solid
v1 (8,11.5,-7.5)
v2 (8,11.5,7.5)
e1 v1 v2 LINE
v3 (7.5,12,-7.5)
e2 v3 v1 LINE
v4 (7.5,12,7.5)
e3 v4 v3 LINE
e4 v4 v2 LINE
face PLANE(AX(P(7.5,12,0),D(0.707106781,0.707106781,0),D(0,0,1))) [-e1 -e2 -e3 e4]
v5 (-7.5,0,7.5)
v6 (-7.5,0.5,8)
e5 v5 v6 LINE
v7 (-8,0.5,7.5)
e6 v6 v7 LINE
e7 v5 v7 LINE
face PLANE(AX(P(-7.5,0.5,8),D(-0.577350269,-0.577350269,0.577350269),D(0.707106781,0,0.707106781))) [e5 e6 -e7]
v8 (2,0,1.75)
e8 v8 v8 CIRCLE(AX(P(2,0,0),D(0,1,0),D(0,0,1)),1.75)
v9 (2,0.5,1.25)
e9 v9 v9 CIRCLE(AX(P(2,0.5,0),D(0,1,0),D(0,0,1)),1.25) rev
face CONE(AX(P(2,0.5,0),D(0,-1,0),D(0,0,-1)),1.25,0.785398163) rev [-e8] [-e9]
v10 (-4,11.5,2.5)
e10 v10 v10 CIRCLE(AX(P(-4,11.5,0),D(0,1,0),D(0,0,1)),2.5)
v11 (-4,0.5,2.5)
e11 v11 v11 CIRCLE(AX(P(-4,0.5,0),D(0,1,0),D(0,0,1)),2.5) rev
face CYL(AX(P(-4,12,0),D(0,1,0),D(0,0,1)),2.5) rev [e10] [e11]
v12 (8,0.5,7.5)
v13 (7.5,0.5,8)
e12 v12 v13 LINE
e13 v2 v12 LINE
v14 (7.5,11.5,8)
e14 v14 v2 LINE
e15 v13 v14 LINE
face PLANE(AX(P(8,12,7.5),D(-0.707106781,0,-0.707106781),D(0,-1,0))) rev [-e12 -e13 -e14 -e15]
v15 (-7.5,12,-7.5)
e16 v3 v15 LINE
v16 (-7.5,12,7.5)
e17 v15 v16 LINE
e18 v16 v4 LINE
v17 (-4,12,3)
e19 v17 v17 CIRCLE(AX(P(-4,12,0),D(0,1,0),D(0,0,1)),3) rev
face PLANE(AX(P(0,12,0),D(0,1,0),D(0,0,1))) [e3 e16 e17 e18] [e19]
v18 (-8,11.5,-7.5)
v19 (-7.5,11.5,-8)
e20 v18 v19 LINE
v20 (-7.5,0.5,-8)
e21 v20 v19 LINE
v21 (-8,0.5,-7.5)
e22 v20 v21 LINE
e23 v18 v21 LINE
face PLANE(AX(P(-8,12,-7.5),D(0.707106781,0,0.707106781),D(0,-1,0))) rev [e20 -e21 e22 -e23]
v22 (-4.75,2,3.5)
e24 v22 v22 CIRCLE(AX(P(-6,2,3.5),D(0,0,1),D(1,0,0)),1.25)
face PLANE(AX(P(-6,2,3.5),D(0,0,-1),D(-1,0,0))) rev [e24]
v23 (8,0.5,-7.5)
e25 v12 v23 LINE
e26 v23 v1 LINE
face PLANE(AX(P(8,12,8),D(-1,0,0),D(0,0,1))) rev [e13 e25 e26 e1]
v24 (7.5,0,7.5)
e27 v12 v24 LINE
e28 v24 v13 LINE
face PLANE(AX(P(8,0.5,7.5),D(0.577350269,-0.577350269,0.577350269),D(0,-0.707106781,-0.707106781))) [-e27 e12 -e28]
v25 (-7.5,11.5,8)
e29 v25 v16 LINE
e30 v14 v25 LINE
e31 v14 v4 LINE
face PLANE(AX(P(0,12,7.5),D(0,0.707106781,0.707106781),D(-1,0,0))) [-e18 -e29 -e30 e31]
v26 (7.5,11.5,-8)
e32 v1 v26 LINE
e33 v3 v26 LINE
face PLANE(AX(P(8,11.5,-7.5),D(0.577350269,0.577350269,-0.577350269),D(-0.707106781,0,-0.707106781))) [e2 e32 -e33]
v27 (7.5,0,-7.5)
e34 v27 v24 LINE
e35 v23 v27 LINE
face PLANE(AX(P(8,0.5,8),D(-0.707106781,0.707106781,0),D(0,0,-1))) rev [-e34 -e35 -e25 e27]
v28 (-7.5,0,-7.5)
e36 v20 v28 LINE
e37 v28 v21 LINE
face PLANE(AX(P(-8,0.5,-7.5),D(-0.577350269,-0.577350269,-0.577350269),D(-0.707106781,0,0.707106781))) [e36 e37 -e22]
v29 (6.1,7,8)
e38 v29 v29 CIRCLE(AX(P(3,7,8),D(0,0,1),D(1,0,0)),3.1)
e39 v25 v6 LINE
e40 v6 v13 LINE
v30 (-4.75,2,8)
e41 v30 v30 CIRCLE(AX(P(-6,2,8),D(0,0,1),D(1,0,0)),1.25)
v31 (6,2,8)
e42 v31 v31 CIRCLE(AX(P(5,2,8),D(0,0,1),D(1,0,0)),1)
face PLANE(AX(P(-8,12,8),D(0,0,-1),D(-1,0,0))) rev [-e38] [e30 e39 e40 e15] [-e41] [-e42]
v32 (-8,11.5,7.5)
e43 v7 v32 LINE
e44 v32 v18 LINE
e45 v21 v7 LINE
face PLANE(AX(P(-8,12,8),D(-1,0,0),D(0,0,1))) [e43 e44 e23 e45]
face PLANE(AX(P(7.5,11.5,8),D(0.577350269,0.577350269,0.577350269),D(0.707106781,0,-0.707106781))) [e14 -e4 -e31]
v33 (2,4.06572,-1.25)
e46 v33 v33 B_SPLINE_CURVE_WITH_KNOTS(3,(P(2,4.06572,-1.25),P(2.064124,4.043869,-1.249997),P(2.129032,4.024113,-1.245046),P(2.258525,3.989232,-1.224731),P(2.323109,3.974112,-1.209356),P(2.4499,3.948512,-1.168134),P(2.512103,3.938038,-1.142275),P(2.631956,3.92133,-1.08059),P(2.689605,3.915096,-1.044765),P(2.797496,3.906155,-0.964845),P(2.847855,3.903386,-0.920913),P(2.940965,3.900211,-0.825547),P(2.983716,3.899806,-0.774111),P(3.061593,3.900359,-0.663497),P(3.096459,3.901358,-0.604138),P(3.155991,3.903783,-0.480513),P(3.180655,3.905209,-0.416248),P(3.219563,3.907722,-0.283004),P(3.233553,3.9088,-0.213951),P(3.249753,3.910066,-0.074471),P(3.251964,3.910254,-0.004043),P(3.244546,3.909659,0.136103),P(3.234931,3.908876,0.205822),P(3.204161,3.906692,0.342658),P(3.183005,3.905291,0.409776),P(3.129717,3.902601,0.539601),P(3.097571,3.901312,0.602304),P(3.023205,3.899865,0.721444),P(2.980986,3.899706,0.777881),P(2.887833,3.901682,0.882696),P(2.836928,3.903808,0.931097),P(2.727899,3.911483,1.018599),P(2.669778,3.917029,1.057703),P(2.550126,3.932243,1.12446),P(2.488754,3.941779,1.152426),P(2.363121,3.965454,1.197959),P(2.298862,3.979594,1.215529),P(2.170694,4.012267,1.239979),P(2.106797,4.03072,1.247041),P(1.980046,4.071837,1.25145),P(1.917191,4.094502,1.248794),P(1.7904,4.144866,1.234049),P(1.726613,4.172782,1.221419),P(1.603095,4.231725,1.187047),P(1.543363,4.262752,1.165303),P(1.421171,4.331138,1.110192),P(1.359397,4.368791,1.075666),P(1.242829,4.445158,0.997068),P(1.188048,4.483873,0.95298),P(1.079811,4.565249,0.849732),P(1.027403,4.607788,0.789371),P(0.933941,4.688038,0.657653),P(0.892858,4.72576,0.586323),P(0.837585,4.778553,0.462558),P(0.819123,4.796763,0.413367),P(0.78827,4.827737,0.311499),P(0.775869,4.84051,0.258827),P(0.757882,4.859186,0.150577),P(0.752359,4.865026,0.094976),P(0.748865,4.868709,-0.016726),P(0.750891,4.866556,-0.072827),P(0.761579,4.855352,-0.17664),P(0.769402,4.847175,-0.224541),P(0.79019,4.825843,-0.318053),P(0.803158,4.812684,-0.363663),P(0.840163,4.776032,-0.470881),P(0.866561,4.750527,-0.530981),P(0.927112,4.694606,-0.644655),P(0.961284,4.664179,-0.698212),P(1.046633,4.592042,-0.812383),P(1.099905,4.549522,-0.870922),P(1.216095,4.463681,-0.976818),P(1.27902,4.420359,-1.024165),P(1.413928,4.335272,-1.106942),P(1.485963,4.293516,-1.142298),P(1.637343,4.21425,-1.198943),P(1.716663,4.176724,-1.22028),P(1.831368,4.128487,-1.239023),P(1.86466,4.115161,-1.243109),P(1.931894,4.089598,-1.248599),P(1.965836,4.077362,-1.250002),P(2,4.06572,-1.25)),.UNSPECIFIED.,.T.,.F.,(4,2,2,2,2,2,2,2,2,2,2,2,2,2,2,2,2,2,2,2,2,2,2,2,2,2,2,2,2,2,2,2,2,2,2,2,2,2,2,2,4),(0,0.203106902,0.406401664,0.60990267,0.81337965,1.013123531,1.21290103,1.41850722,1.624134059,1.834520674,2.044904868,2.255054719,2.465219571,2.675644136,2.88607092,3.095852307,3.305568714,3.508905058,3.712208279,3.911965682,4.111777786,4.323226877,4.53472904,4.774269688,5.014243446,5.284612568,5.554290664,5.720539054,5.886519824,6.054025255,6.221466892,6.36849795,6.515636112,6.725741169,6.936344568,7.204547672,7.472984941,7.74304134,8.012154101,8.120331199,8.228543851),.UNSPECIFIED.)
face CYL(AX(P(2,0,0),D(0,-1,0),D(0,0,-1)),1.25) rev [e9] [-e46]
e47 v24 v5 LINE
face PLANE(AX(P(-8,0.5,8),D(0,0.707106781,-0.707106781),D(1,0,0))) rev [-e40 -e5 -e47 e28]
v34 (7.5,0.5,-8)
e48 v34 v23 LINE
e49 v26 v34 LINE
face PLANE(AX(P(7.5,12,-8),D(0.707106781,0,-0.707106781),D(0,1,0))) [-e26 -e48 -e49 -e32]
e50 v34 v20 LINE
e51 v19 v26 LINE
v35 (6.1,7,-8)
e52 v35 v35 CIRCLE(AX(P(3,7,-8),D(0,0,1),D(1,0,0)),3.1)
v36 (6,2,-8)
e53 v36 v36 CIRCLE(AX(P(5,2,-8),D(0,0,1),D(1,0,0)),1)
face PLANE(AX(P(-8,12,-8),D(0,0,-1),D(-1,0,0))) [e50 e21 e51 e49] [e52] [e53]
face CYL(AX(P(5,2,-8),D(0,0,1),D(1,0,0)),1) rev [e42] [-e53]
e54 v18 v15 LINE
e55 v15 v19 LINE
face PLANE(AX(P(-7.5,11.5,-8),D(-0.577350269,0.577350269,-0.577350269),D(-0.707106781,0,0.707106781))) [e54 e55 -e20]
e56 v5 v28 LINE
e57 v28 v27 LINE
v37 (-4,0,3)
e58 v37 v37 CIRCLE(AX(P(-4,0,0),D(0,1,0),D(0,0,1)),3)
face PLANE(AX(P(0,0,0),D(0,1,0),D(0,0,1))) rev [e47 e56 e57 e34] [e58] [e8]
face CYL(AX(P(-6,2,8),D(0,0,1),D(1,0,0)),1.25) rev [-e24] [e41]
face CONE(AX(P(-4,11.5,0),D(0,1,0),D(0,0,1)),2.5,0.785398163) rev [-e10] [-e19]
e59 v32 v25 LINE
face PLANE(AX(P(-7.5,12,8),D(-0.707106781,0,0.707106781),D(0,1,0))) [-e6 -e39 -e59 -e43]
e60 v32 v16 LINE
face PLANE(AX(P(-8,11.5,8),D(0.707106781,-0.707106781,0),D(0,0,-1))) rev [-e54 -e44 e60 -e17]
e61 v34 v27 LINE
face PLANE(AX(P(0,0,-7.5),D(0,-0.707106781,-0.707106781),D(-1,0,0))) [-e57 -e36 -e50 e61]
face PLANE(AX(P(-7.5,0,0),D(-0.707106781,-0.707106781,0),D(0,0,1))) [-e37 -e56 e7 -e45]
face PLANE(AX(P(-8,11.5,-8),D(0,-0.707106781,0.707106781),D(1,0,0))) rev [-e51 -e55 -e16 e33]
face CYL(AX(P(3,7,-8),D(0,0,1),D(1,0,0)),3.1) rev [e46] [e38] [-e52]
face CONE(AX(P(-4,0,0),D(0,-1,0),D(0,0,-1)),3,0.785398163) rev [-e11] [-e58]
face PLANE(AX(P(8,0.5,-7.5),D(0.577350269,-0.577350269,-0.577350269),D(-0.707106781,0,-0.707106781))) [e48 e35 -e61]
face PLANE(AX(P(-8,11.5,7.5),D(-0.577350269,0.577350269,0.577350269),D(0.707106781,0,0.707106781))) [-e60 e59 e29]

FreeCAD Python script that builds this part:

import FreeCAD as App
import Part
import Sketcher
from FreeCAD import Vector


def edges_at(feature, points):
    """Names of the edges that pass closest to the given points."""
    edges = feature.Shape.Edges
    near = lambda p: min(range(len(edges)), key=lambda i: edges[i].distToShape(Part.Vertex(*p))[0])
    return sorted({f"Edge{near(p) + 1}" for p in points})

doc = App.newDocument("Part")
body = doc.addObject("PartDesign::Body", "Body")

# Sketch on XZ plane
sketch1 = body.newObject("Sketcher::SketchObject", "Sketch")
sketch1.AttachmentSupport = (doc.getObject("XZ_Plane"), [""])
sketch1.MapMode = "FlatFace"
sketch1.addGeometry([
    Part.LineSegment(Vector(-8, -8, 0), Vector(-8, 8, 0)),
    Part.LineSegment(Vector(-8, 8, 0), Vector(8, 8, 0)),
    Part.LineSegment(Vector(8, 8, 0), Vector(8, -8, 0)),
    Part.LineSegment(Vector(8, -8, 0), Vector(-8, -8, 0)),
], False)
sketch1.addConstraint([
    Sketcher.Constraint("Coincident", 0, 2, 1, 1),
    Sketcher.Constraint("Coincident", 1, 2, 2, 1),
    Sketcher.Constraint("Coincident", 2, 2, 3, 1),
    Sketcher.Constraint("Coincident", 3, 2, 0, 1),
    Sketcher.Constraint("Vertical", 0),
    Sketcher.Constraint("Horizontal", 1),
    Sketcher.Constraint("Vertical", 2),
    Sketcher.Constraint("Horizontal", 3),
    Sketcher.Constraint("Symmetric", 0, 2, 2, 2, -1, 1),
    Sketcher.Constraint("Equal", 3, 0),
    Sketcher.Constraint("DistanceX", 1, 1, 1, 2, 16.0),
])
pad1 = body.newObject("PartDesign::Pad", "Pad")
pad1.Profile = sketch1
pad1.Length = 12
pad1.Reversed = True

# Sketch on XY plane
sketch2 = body.newObject("Sketcher::SketchObject", "Sketch001")
sketch2.AttachmentSupport = (doc.getObject("XY_Plane"), [""])
sketch2.MapMode = "FlatFace"
sketch2.AttachmentOffset = App.Placement(Vector(0, 0, 8), App.Rotation())
sketch2.addGeometry([
    Part.Circle(Vector(3, 7, 0), Vector(0, 0, 1), 3.1),
    Part.Circle(Vector(5, 2, 0), Vector(0, 0, 1), 1),
], False)
sketch2.addConstraint([
    Sketcher.Constraint("Diameter", 1, 2.0),
    Sketcher.Constraint("Diameter", 0, 6.2),
    Sketcher.Constraint("DistanceX", -1, 1, 0, 3, 3.0),
    Sketcher.Constraint("DistanceY", -1, 1, 0, 3, 7.0),
    Sketcher.Constraint("DistanceX", -1, 1, 1, 3, 5.0),
    Sketcher.Constraint("DistanceY", -1, 1, 1, 3, 2.0),
])
pocket1 = body.newObject("PartDesign::Pocket", "Pocket")
pocket1.Profile = sketch2
pocket1.Type = "ThroughAll"

# Sketch on XY plane
sketch3 = body.newObject("Sketcher::SketchObject", "Sketch002")
sketch3.AttachmentSupport = (doc.getObject("XY_Plane"), [""])
sketch3.MapMode = "FlatFace"
sketch3.AttachmentOffset = App.Placement(Vector(0, 0, 8), App.Rotation())
sketch3.addGeometry(Part.Circle(Vector(-6, 2, 0), Vector(0, 0, 1), 1.2), False)
sketch3.addConstraint([
    Sketcher.Constraint("Diameter", 0, 2.5),
    Sketcher.Constraint("DistanceX", 0, 3, -1, 1, 6.0),
    Sketcher.Constraint("DistanceY", -1, 1, 0, 3, 2.0),
])
doc.recompute()
hole = body.newObject("PartDesign::Hole", "Hole")
hole.Profile = sketch3
hole.ThreadType = "None"
hole.Diameter = 2.5
hole.DepthType = "Dimension"
hole.Depth = 4.5
hole.DrillPoint = "Flat"

# Sketch on XZ plane
sketch4 = body.newObject("Sketcher::SketchObject", "Sketch003")
sketch4.AttachmentSupport = (doc.getObject("XZ_Plane"), [""])
sketch4.MapMode = "FlatFace"
sketch4.AttachmentOffset = App.Placement(Vector(0, 0, -12), App.Rotation())
sketch4.addGeometry(Part.Circle(Vector(-4, 0, 0), Vector(0, 0, 1), 2.5), False)
sketch4.addConstraint([
    Sketcher.Constraint("PointOnObject", 0, 3, -1),
    Sketcher.Constraint("Diameter", 0, 5.0),
    Sketcher.Constraint("DistanceX", 0, 3, -1, 1, 4.0),
])
doc.recompute()
hole2 = body.newObject("PartDesign::Hole", "Hole001")
hole2.Profile = sketch4
hole2.ThreadType = "None"
hole2.Diameter = 5
hole2.DepthType = "ThroughAll"
hole2.Reversed = True

# Sketch on XZ plane
sketch5 = body.newObject("Sketcher::SketchObject", "Sketch004")
sketch5.AttachmentSupport = (doc.getObject("XZ_Plane"), [""])
sketch5.MapMode = "FlatFace"
sketch5.addGeometry(Part.Circle(Vector(2, 0, 0), Vector(0, 0, 1), 1.2), False)
sketch5.addConstraint([
    Sketcher.Constraint("PointOnObject", 0, 3, -1),
    Sketcher.Constraint("Diameter", 0, 2.5),
    Sketcher.Constraint("DistanceX", -1, 1, 0, 3, 2.0),
])
doc.recompute()
hole3 = body.newObject("PartDesign::Hole", "Hole002")
hole3.Profile = sketch5
hole3.ThreadType = "None"
hole3.Diameter = 2.5
hole3.DepthType = "Dimension"
hole3.Depth = 6.999
hole3.DrillPoint = "Angled"
hole3.DrillPointAngle = 118
doc.recompute()

chamfer = body.newObject("PartDesign::Chamfer", "Chamfer")
chamfer.Base = (hole3, edges_at(hole3, [
    (0, 12, -8),
    (-8, 12, 0),
    (-1.5, 12, 0),
    (-1.5, 0, 0),
    (0.75, 0, 0),
    (0, 12, 8),
    (-8, 0, 0),
    (0, 0, -8),
    (8, 0, 0),
    (0, 0, 8),
    (8, 12, 0),
    (-8, 6, 8),
    (-8, 6, -8),
    (8, 6, -8),
    (8, 6, 8),
]))
chamfer.Size = 0.5

doc.recompute()
